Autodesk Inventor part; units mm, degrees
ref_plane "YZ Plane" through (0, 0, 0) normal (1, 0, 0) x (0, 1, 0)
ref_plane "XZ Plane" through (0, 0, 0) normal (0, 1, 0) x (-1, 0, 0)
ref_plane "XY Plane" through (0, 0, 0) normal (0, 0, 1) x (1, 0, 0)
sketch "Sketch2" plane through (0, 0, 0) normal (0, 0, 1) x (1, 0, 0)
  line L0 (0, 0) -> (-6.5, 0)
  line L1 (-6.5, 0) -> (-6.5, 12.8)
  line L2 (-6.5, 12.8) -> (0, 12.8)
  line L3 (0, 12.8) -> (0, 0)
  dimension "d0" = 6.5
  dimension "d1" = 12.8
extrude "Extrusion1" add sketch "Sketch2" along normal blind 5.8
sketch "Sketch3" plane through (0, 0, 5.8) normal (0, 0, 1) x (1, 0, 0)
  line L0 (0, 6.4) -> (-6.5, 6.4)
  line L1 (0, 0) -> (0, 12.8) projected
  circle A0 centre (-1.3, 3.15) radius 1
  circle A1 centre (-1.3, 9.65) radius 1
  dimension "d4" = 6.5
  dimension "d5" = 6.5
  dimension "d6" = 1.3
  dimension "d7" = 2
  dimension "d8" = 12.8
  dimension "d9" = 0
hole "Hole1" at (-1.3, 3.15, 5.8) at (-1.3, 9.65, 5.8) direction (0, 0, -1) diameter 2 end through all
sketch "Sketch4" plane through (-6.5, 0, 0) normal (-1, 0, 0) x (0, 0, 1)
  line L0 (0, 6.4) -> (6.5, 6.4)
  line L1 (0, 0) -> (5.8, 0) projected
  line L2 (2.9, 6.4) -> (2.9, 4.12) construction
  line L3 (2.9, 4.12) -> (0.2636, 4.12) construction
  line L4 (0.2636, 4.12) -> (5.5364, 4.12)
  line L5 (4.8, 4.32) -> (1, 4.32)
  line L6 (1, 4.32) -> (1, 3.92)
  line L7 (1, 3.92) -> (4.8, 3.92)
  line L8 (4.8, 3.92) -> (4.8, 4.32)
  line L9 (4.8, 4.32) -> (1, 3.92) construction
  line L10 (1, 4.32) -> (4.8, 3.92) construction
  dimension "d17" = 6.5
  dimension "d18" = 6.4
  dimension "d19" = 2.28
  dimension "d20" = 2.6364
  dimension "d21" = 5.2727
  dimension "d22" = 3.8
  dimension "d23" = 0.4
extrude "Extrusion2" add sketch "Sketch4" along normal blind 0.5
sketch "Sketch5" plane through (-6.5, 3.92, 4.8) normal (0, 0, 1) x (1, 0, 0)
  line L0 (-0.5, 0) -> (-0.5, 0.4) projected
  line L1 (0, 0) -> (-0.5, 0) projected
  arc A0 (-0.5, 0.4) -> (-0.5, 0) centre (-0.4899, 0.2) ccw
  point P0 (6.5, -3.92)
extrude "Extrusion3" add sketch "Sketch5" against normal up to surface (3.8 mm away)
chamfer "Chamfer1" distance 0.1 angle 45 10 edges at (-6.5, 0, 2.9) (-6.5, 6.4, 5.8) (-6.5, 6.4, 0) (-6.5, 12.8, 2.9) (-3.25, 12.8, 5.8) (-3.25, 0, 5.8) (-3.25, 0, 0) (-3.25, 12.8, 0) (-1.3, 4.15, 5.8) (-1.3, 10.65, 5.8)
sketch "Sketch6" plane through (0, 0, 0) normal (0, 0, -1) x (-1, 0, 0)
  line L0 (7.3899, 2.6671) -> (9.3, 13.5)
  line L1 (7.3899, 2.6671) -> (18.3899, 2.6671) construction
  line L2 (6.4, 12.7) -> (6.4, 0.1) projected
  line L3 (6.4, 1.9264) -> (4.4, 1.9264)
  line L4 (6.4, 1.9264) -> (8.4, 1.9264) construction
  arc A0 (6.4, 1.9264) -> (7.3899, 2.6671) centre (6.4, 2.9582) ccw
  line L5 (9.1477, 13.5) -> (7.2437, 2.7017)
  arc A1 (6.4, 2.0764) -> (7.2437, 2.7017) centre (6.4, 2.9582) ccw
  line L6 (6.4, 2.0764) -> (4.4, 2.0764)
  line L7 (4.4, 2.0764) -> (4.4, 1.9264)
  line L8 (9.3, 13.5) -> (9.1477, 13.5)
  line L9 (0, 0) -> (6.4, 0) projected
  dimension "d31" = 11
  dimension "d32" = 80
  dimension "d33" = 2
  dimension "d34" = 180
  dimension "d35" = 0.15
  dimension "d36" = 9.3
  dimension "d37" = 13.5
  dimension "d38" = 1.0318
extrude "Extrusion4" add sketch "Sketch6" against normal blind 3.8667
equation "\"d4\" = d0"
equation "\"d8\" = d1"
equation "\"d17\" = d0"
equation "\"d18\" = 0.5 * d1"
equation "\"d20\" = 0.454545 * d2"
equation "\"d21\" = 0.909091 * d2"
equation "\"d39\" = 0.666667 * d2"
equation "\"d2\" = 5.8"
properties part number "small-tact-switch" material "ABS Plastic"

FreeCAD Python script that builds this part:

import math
import FreeCAD as App
import Part
import Sketcher
from FreeCAD import Vector
Q = App.Units.Quantity


def edges_at(feature, points):
    """Names of the edges that pass closest to the given points."""
    edges = feature.Shape.Edges
    near = lambda p: min(range(len(edges)), key=lambda i: edges[i].distToShape(Part.Vertex(*p))[0])
    return sorted({f"Edge{near(p) + 1}" for p in points})

doc = App.newDocument("Part")
body = doc.addObject("PartDesign::Body", "Body")

# Sketch on XY plane
sketch1 = body.newObject("Sketcher::SketchObject", "Sketch")
sketch1.AttachmentSupport = (doc.getObject("XY_Plane"), [""])
sketch1.MapMode = "FlatFace"
sketch1.addGeometry([
    Part.LineSegment(Vector(-6, 0, 0), Vector(0, 0, 0)),
    Part.LineSegment(Vector(0, 0, 0), Vector(0, 13, 0)),
    Part.LineSegment(Vector(0, 13, 0), Vector(-6, 13, 0)),
    Part.LineSegment(Vector(-6, 13, 0), Vector(-6, 0, 0)),
], False)
sketch1.addConstraint([
    Sketcher.Constraint("Coincident", 0, 2, 1, 1),
    Sketcher.Constraint("Coincident", 1, 2, 2, 1),
    Sketcher.Constraint("Coincident", 2, 2, 3, 1),
    Sketcher.Constraint("Coincident", 3, 2, 0, 1),
    Sketcher.Constraint("Horizontal", 0),
    Sketcher.Constraint("Vertical", 1),
    Sketcher.Constraint("Horizontal", 2),
    Sketcher.Constraint("Vertical", 3),
    Sketcher.Constraint("Coincident", 0, 2, -1, 1),
    Sketcher.Constraint("DistanceX", 0, 1, 0, 2, 6.5),
    Sketcher.Constraint("DistanceY", 1, 1, 1, 2, 12.8),
])
pad1 = body.newObject("PartDesign::Pad", "Pad")
pad1.Profile = sketch1
pad1.Length = 5.8

# Sketch on XY plane
sketch2 = body.newObject("Sketcher::SketchObject", "Sketch001")
sketch2.AttachmentSupport = (doc.getObject("XY_Plane"), [""])
sketch2.MapMode = "FlatFace"
sketch2.AttachmentOffset = App.Placement(Vector(0, 0, 5.8), App.Rotation())
sketch2.addGeometry([
    Part.Circle(Vector(-1.3, 3.1, 0), Vector(0, 0, 1), 1),
    Part.Circle(Vector(-1.3, 9.7, 0), Vector(0, 0, 1), 1),
], False)
sketch2.addConstraint([
    Sketcher.Constraint("Equal", 0, 1),
    Sketcher.Constraint("Vertical", 0, 3, 1, 3),
    Sketcher.Constraint("Diameter", 0, 2.0),
    Sketcher.Constraint("DistanceX", 0, 3, -1, 1, 1.3),
    Sketcher.Constraint("DistanceY", 0, 3, 1, 3, 6.5),
    Sketcher.Constraint("DistanceY", -1, 1, 0, 3, 3.15),
])
doc.recompute()
hole = body.newObject("PartDesign::Hole", "Hole")
hole.Profile = sketch2
hole.ThreadType = "None"
hole.Diameter = 2
hole.DepthType = "ThroughAll"

# Sketch on YZ plane
sketch3 = body.newObject("Sketcher::SketchObject", "Sketch002")
sketch3.AttachmentSupport = (doc.getObject("YZ_Plane"), [""])
sketch3.MapMode = "FlatFace"
sketch3.AttachmentOffset = App.Placement(Vector(0, 0, -6.5), App.Rotation())
sketch3.addGeometry([
    Part.LineSegment(Vector(4.32, 1, 0), Vector(3.92, 1, 0)),
    Part.LineSegment(Vector(3.92, 1, 0), Vector(3.92, 4.8, 0)),
    Part.LineSegment(Vector(3.92, 4.8, 0), Vector(4.32, 4.8, 0)),
    Part.LineSegment(Vector(4.32, 4.8, 0), Vector(4.32, 1, 0)),
], False)
sketch3.addConstraint([
    Sketcher.Constraint("Coincident", 0, 2, 1, 1),
    Sketcher.Constraint("Coincident", 1, 2, 2, 1),
    Sketcher.Constraint("Coincident", 2, 2, 3, 1),
    Sketcher.Constraint("Coincident", 3, 2, 0, 1),
    Sketcher.Constraint("Horizontal", 0),
    Sketcher.Constraint("Vertical", 1),
    Sketcher.Constraint("Horizontal", 2),
    Sketcher.Constraint("Vertical", 3),
    Sketcher.Constraint("DistanceX", 0, 2, 0, 1, 0.4),
    Sketcher.Constraint("DistanceY", 1, 1, 1, 2, 3.8),
    Sketcher.Constraint("DistanceY", -1, 1, 0, 2, 1.0),
    Sketcher.Constraint("DistanceX", -1, 1, 0, 2, 3.92),
])
pad2 = body.newObject("PartDesign::Pad", "Pad001")
pad2.Profile = sketch3
pad2.Length = 0.5
pad2.Reversed = True

# Sketch on XY plane
sketch4 = body.newObject("Sketcher::SketchObject", "Sketch003")
sketch4.AttachmentSupport = (doc.getObject("XY_Plane"), [""])
sketch4.MapMode = "FlatFace"
sketch4.AttachmentOffset = App.Placement(Vector(0, 0, 4.8), App.Rotation())
sketch4.addGeometry([
    Part.ArcOfCircle(Part.Circle(Vector(-6.99, 4.12, 0), Vector(0, 0, 1), 0.2), math.radians(93), math.radians(267)),
    Part.LineSegment(Vector(-7, 3.92, 0), Vector(-7, 4.32, 0)),
], False)
sketch4.addConstraint([
    Sketcher.Constraint("Coincident", 0, 1, 1, 2),
    Sketcher.Constraint("Coincident", 1, 1, 0, 2),
    Sketcher.Constraint("Vertical", 1),
    Sketcher.Constraint("DistanceY", 1, 1, 1, 2, 0.4),
    Sketcher.Constraint("DistanceX", 0, 1, -1, 1, 7.0),
    Sketcher.Constraint("Radius", 0, 0.2003),
    Sketcher.Constraint("DistanceY", -1, 1, 0, 3, 4.12),
])
pad3 = body.newObject("PartDesign::Pad", "Pad002")
pad3.Profile = sketch4
pad3.Length = 3.8
pad3.Reversed = True
doc.recompute()

chamfer = body.newObject("PartDesign::Chamfer", "Chamfer")
chamfer.Base = (pad3, edges_at(pad3, [
    (-6.5, 0, 2.9),
    (-6.5, 6.4, 5.8),
    (-6.5, 6.4, 0),
    (-6.5, 12.8, 2.9),
    (-3.25, 12.8, 5.8),
    (-3.25, 0, 5.8),
    (-3.25, 0, 0),
    (-3.25, 12.8, 0),
    (-1.3, 4.15, 5.8),
    (-1.3, 10.65, 5.8),
]))
chamfer.Size = 0.1

# Sketch on XY plane
sketch5 = body.newObject("Sketcher::SketchObject", "Sketch004")
sketch5.AttachmentSupport = (doc.getObject("XY_Plane"), [""])
sketch5.MapMode = "FlatFace"
sketch5.addGeometry([
    Part.ArcOfCircle(Part.Circle(Vector(-6.4, 2.96, 0), Vector(0, 0, 1), 1.03), math.radians(-164), math.radians(-90)),  # 0
    Part.LineSegment(Vector(-7.39, 2.67, 0), Vector(-9.3, 13.5, 0)),  # 1
    Part.LineSegment(Vector(-9.3, 13.5, 0), Vector(-9.15, 13.5, 0)),  # 2
    Part.LineSegment(Vector(-9.15, 13.5, 0), Vector(-7.24, 2.7, 0)),  # 3
    Part.ArcOfCircle(Part.Circle(Vector(-6.4, 2.96, 0), Vector(0, 0, 1), 0.88), math.radians(-163), math.radians(-90)),  # 4
    Part.LineSegment(Vector(-6.4, 2.08, 0), Vector(-4.4, 2.08, 0)),  # 5
    Part.LineSegment(Vector(-4.4, 2.08, 0), Vector(-4.4, 1.93, 0)),  # 6
    Part.LineSegment(Vector(-4.4, 1.93, 0), Vector(-6.4, 1.93, 0)),  # 7
], False)
sketch5.addConstraint([
    Sketcher.Constraint("Coincident", 0, 1, 1, 1),
    Sketcher.Constraint("Coincident", 1, 2, 2, 1),
    Sketcher.Constraint("Coincident", 2, 2, 3, 1),
    Sketcher.Constraint("Coincident", 3, 2, 4, 1),
    Sketcher.Constraint("Tangent", 4, 2, 5, 1),
    Sketcher.Constraint("Coincident", 5, 2, 6, 1),
    Sketcher.Constraint("Coincident", 6, 2, 7, 1),
    Sketcher.Constraint("Tangent", 7, 2, 0, 2),
    Sketcher.Constraint("Horizontal", 2),
    Sketcher.Constraint("Horizontal", 5),
    Sketcher.Constraint("Vertical", 6),
    Sketcher.Constraint("Horizontal", 7),
    Sketcher.Constraint("Coincident", 4, 3, 0, 3),
    Sketcher.Constraint("Parallel", 1, 3),
    Sketcher.Constraint("DistanceX", 5, 1, 5, 2, 2.0),
    Sketcher.Constraint("Angle", 3, Q("-80.0002 deg")),
    Sketcher.Constraint("Distance", 1, 11.0),
    Sketcher.Constraint("DistanceY", 6, 2, 6, 1, 0.15),
    Sketcher.Constraint("DistanceX", 1, 2, -1, 1, 9.3),
    Sketcher.Constraint("DistanceY", -1, 1, 1, 2, 13.5),
    Sketcher.Constraint("Radius", 0, 1.0318),
    Sketcher.Constraint("DistanceX", 0, 3, -1, 1, 6.4),
    Sketcher.Constraint("DistanceX", 2, 1, 2, 2, 0.1523),
])
pad4 = body.newObject("PartDesign::Pad", "Pad003")
pad4.Profile = sketch5
pad4.Length = 3.8667

doc.recompute()
